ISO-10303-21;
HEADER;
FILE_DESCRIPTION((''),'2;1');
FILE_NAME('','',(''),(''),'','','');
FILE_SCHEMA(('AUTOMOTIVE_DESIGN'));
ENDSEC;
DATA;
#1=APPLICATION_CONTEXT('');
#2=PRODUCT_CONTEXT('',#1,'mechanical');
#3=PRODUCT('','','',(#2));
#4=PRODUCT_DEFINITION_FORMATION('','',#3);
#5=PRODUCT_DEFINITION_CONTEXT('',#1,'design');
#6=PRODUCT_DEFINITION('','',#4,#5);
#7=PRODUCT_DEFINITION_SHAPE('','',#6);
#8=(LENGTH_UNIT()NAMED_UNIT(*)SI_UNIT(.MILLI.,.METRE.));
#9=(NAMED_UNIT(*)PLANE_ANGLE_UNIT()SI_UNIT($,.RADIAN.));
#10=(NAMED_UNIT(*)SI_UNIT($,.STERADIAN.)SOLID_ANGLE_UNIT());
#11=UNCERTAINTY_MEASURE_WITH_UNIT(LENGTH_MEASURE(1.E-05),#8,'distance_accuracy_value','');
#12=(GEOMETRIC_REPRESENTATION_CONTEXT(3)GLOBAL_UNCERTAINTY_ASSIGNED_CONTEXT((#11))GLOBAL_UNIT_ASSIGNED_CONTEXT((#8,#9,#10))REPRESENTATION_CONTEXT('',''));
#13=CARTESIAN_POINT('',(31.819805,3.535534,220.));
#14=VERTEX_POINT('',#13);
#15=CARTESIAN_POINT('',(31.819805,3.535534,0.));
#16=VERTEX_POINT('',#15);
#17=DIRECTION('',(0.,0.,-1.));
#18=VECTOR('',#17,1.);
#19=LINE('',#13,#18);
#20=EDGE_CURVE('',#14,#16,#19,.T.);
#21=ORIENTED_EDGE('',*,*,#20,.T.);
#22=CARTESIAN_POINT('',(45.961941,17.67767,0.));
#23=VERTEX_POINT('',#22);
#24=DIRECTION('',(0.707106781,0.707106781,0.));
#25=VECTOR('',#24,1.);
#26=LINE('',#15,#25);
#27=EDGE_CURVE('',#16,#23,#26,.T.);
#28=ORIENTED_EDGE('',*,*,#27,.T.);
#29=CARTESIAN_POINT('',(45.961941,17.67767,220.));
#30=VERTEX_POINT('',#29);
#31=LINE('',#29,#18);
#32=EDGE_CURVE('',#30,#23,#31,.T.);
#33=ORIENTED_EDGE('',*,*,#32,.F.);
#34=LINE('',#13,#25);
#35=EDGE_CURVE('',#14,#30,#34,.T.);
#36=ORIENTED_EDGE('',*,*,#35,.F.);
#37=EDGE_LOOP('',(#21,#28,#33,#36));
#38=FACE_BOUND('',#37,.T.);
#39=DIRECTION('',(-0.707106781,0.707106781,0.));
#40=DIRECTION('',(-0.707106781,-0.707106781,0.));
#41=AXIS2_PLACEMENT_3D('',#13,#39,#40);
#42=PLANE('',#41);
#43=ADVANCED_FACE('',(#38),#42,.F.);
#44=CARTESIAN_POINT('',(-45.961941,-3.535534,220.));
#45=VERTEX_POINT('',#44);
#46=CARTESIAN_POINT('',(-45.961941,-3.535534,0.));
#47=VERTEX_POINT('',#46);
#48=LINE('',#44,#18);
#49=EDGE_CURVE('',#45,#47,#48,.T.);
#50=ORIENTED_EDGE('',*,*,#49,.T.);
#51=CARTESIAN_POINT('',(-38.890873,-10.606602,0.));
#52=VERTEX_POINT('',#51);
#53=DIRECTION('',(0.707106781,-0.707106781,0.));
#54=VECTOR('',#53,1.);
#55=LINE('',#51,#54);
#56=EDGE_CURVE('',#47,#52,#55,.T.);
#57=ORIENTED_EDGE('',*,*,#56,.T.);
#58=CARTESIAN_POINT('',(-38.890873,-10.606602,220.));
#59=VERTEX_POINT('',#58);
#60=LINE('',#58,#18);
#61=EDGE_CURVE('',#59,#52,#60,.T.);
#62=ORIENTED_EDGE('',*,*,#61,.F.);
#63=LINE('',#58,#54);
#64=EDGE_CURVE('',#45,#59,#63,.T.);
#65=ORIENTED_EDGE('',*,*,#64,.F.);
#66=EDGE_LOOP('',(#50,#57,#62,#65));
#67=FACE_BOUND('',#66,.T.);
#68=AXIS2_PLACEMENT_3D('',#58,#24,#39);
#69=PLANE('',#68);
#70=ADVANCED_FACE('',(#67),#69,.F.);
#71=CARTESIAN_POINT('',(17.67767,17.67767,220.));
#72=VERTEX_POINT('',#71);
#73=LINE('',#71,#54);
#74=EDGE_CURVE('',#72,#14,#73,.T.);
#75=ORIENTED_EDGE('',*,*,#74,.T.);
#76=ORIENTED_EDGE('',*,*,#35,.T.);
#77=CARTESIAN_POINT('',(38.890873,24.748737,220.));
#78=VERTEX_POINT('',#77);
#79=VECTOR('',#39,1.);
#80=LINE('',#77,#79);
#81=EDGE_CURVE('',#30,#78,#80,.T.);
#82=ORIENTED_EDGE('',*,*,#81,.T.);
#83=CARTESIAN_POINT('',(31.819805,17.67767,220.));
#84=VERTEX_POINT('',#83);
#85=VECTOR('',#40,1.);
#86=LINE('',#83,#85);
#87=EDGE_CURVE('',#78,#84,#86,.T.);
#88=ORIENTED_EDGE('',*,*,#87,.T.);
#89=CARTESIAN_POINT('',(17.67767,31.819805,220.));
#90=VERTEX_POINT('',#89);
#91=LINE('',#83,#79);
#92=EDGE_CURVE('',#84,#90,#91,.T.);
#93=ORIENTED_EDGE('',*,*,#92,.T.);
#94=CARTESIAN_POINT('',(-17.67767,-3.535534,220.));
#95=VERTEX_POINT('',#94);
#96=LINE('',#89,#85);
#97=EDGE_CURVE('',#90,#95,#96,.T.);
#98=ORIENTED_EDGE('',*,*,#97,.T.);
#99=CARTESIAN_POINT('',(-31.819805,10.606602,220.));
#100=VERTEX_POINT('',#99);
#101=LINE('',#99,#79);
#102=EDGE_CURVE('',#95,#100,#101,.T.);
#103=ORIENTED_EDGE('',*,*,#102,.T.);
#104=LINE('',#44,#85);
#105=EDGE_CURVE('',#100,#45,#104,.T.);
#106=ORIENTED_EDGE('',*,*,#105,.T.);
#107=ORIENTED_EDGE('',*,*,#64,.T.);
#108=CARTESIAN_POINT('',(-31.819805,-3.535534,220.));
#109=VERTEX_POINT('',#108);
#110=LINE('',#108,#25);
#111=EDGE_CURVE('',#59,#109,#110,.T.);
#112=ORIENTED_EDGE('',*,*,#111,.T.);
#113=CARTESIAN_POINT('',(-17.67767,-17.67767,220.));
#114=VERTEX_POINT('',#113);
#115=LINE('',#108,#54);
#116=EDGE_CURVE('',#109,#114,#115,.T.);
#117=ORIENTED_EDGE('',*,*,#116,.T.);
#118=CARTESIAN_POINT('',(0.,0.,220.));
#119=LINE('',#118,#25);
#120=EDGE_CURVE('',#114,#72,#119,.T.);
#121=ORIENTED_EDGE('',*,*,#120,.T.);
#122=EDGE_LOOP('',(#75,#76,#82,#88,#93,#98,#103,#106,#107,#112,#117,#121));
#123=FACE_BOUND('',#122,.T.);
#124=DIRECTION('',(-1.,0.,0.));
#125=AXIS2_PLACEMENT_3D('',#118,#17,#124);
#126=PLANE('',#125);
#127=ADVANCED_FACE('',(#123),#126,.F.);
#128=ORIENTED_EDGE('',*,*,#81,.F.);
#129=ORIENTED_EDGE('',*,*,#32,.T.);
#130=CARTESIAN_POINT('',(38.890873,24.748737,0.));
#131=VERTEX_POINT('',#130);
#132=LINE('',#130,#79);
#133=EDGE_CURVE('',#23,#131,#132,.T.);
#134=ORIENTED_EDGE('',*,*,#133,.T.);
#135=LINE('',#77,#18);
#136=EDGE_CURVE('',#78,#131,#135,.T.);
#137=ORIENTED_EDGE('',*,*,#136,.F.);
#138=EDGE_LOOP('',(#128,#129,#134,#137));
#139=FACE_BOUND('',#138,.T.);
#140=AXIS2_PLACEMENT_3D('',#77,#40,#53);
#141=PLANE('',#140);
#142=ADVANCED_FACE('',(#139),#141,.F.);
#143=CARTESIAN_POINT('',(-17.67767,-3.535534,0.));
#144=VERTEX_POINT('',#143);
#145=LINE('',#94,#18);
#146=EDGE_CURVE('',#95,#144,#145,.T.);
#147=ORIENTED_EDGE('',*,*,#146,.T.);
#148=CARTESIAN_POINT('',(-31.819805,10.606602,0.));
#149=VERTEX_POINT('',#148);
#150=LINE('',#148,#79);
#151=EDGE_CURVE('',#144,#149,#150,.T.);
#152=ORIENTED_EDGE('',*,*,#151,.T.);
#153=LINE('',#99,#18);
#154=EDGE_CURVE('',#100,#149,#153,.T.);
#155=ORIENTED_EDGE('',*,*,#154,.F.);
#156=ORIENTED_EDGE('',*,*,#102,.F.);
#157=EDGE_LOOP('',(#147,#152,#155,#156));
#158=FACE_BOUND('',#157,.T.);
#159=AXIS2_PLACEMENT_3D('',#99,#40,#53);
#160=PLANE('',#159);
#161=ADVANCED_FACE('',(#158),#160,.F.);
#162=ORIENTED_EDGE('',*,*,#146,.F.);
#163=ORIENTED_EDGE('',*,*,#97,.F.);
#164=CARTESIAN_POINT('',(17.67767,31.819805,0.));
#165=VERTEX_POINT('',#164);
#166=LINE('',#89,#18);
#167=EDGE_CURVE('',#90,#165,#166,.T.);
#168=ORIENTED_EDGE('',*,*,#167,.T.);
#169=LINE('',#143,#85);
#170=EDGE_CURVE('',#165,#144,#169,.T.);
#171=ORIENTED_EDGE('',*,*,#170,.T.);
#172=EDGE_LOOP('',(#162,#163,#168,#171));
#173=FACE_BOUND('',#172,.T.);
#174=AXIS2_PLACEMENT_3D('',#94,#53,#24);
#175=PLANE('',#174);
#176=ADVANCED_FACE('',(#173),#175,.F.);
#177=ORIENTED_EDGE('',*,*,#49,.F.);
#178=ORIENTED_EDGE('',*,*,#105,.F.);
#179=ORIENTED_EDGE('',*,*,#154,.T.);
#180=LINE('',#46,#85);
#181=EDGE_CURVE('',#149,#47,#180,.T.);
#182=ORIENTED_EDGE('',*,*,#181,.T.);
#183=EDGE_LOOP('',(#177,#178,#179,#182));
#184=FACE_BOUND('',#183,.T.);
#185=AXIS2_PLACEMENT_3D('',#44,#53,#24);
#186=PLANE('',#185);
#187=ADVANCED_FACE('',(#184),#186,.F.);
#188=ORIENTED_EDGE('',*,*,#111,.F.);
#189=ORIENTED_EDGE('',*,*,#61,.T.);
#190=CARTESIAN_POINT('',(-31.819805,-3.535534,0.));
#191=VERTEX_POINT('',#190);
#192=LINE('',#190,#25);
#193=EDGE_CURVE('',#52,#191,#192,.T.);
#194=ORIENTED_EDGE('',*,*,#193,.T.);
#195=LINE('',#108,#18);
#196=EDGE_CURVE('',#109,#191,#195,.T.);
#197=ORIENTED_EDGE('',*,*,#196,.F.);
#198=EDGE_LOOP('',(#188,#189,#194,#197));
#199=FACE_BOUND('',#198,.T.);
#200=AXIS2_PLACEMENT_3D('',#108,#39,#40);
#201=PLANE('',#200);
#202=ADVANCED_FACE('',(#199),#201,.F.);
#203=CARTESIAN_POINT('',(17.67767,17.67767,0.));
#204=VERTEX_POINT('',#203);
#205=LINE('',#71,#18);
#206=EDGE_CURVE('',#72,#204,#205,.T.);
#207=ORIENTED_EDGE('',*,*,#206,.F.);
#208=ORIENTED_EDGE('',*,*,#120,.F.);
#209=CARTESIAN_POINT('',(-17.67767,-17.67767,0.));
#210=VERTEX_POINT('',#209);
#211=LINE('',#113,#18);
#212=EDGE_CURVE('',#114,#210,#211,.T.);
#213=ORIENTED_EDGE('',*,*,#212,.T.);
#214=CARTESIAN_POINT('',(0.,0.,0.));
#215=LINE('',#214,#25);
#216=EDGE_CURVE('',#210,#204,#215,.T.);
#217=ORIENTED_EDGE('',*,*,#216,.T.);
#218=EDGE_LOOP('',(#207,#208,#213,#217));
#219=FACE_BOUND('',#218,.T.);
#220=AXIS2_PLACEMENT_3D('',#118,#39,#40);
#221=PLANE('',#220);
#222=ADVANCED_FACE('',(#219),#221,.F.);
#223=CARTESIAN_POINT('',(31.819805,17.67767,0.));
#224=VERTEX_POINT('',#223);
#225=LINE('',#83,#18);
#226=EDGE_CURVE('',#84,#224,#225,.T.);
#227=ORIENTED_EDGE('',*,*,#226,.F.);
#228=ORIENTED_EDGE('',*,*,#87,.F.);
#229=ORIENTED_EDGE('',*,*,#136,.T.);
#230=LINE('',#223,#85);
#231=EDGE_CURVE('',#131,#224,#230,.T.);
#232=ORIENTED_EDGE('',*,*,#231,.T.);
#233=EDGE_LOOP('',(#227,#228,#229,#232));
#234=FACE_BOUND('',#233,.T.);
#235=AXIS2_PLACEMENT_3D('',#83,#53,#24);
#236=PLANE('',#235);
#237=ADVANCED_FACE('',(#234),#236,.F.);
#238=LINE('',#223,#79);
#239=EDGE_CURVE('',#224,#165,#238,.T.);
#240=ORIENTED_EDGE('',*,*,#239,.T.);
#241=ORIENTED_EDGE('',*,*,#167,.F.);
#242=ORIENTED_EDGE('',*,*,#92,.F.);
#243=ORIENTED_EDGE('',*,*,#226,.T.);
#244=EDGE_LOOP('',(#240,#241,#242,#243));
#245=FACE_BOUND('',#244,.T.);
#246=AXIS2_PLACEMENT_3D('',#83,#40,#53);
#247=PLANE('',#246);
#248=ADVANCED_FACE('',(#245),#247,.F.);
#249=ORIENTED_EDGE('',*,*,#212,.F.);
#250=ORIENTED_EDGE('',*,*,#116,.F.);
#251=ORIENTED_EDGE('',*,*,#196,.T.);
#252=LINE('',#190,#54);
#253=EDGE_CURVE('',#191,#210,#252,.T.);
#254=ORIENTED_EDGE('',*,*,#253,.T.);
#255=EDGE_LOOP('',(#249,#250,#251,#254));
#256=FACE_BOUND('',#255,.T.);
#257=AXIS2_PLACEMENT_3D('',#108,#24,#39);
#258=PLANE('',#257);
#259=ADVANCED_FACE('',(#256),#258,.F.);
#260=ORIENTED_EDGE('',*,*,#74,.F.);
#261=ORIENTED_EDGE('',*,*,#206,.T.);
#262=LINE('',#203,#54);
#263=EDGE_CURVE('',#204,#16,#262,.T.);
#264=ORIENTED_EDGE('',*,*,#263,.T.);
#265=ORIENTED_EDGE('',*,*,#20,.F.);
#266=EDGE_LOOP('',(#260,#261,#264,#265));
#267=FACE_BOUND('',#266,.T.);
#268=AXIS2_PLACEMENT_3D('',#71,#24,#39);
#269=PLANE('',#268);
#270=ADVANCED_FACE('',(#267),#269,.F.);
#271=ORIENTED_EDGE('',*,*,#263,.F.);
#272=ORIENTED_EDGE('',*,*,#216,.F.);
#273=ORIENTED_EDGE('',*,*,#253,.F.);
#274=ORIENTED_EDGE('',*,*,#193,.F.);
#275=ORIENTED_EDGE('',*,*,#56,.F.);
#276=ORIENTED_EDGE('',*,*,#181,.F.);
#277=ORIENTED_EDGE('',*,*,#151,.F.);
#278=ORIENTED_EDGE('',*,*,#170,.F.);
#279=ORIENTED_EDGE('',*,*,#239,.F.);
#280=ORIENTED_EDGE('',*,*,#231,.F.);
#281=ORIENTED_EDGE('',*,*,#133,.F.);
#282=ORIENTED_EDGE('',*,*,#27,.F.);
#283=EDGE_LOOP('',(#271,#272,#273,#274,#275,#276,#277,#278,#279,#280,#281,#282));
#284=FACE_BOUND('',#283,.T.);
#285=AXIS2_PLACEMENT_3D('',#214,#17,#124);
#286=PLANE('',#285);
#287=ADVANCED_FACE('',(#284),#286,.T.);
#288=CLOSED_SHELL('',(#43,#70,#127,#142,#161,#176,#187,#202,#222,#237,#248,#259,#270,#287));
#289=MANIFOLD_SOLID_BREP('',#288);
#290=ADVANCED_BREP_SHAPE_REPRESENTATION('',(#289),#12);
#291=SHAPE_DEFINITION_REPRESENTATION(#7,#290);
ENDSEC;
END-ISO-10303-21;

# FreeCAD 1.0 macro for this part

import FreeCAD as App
import Part
import Sketcher
Q = App.Units.Quantity


def add_polygon(sketch, points):
    """Adds a closed chain of lines whose ends are joined by coincident constraints."""
    first, n = sketch.GeometryCount, len(points)
    for a, b in zip(points, points[1:] + points[:1]):
        sketch.addGeometry(Part.LineSegment(App.Vector(*a, 0), App.Vector(*b, 0)), False)
    for i in range(n):
        sketch.addConstraint(Sketcher.Constraint("Coincident", first + i, 2, first + (i + 1) % n, 1))

doc = App.newDocument("Part")
body = doc.addObject("PartDesign::Body", "Body")

sketch1 = body.newObject("Sketcher::SketchObject", "Sketch")
sketch1.AttachmentSupport = (doc.getObject("XY_Plane"), [""])
sketch1.MapMode = "FlatFace"
add_polygon(sketch1, [(-18, -18), (18, 18), (32, 4), (46, 18), (39, 25), (32, 18), (18, 32), (11, 25), (-18, -4), (-32, 11), (-46, -4), (-39, -11), (-32, -4)])
sketch1.addConstraint([
    Sketcher.Constraint("Symmetric", 1, 2, 11, 2, -1, 1),
    Sketcher.Constraint("Symmetric", 0, 2, 12, 2, -1, 1),
    Sketcher.Constraint("Perpendicular", 0, 1),
    Sketcher.Constraint("Perpendicular", 1, 2),
    Sketcher.Constraint("Perpendicular", 2, 3),
    Sketcher.Constraint("Perpendicular", 3, 4),
    Sketcher.Constraint("Perpendicular", 4, 5),
    Sketcher.Constraint("Perpendicular", 5, 6),
    Sketcher.Constraint("Parallel", 6, 7),
    Sketcher.Constraint("Perpendicular", 7, 8),
    Sketcher.Constraint("Perpendicular", 8, 9),
    Sketcher.Constraint("Perpendicular", 9, 10),
    Sketcher.Constraint("Perpendicular", 10, 11),
    Sketcher.Constraint("Horizontal", 0, 2, 2, 2),
    Sketcher.Constraint("Horizontal", 2, 2, 4, 2),
    Sketcher.Constraint("Horizontal", 3, 2, 6, 2),
    Sketcher.Constraint("Horizontal", 7, 2, 9, 2),
    Sketcher.Constraint("Horizontal", 9, 2, 11, 2),
    Sketcher.Constraint("Vertical", 1, 2, 4, 2),
    Sketcher.Constraint("Vertical", 0, 2, 5, 2),
    Sketcher.Constraint("Vertical", 8, 2, 11, 2),
    Sketcher.Constraint("Equal", 1, 2),
    Sketcher.Constraint("Distance", 0, Q("50 mm")),
    Sketcher.Constraint("Distance", 1, Q("20 mm")),
])
pad1 = body.newObject("PartDesign::Pad", "Pad")
pad1.Profile = sketch1
pad1.Length = 220

doc.recompute()
